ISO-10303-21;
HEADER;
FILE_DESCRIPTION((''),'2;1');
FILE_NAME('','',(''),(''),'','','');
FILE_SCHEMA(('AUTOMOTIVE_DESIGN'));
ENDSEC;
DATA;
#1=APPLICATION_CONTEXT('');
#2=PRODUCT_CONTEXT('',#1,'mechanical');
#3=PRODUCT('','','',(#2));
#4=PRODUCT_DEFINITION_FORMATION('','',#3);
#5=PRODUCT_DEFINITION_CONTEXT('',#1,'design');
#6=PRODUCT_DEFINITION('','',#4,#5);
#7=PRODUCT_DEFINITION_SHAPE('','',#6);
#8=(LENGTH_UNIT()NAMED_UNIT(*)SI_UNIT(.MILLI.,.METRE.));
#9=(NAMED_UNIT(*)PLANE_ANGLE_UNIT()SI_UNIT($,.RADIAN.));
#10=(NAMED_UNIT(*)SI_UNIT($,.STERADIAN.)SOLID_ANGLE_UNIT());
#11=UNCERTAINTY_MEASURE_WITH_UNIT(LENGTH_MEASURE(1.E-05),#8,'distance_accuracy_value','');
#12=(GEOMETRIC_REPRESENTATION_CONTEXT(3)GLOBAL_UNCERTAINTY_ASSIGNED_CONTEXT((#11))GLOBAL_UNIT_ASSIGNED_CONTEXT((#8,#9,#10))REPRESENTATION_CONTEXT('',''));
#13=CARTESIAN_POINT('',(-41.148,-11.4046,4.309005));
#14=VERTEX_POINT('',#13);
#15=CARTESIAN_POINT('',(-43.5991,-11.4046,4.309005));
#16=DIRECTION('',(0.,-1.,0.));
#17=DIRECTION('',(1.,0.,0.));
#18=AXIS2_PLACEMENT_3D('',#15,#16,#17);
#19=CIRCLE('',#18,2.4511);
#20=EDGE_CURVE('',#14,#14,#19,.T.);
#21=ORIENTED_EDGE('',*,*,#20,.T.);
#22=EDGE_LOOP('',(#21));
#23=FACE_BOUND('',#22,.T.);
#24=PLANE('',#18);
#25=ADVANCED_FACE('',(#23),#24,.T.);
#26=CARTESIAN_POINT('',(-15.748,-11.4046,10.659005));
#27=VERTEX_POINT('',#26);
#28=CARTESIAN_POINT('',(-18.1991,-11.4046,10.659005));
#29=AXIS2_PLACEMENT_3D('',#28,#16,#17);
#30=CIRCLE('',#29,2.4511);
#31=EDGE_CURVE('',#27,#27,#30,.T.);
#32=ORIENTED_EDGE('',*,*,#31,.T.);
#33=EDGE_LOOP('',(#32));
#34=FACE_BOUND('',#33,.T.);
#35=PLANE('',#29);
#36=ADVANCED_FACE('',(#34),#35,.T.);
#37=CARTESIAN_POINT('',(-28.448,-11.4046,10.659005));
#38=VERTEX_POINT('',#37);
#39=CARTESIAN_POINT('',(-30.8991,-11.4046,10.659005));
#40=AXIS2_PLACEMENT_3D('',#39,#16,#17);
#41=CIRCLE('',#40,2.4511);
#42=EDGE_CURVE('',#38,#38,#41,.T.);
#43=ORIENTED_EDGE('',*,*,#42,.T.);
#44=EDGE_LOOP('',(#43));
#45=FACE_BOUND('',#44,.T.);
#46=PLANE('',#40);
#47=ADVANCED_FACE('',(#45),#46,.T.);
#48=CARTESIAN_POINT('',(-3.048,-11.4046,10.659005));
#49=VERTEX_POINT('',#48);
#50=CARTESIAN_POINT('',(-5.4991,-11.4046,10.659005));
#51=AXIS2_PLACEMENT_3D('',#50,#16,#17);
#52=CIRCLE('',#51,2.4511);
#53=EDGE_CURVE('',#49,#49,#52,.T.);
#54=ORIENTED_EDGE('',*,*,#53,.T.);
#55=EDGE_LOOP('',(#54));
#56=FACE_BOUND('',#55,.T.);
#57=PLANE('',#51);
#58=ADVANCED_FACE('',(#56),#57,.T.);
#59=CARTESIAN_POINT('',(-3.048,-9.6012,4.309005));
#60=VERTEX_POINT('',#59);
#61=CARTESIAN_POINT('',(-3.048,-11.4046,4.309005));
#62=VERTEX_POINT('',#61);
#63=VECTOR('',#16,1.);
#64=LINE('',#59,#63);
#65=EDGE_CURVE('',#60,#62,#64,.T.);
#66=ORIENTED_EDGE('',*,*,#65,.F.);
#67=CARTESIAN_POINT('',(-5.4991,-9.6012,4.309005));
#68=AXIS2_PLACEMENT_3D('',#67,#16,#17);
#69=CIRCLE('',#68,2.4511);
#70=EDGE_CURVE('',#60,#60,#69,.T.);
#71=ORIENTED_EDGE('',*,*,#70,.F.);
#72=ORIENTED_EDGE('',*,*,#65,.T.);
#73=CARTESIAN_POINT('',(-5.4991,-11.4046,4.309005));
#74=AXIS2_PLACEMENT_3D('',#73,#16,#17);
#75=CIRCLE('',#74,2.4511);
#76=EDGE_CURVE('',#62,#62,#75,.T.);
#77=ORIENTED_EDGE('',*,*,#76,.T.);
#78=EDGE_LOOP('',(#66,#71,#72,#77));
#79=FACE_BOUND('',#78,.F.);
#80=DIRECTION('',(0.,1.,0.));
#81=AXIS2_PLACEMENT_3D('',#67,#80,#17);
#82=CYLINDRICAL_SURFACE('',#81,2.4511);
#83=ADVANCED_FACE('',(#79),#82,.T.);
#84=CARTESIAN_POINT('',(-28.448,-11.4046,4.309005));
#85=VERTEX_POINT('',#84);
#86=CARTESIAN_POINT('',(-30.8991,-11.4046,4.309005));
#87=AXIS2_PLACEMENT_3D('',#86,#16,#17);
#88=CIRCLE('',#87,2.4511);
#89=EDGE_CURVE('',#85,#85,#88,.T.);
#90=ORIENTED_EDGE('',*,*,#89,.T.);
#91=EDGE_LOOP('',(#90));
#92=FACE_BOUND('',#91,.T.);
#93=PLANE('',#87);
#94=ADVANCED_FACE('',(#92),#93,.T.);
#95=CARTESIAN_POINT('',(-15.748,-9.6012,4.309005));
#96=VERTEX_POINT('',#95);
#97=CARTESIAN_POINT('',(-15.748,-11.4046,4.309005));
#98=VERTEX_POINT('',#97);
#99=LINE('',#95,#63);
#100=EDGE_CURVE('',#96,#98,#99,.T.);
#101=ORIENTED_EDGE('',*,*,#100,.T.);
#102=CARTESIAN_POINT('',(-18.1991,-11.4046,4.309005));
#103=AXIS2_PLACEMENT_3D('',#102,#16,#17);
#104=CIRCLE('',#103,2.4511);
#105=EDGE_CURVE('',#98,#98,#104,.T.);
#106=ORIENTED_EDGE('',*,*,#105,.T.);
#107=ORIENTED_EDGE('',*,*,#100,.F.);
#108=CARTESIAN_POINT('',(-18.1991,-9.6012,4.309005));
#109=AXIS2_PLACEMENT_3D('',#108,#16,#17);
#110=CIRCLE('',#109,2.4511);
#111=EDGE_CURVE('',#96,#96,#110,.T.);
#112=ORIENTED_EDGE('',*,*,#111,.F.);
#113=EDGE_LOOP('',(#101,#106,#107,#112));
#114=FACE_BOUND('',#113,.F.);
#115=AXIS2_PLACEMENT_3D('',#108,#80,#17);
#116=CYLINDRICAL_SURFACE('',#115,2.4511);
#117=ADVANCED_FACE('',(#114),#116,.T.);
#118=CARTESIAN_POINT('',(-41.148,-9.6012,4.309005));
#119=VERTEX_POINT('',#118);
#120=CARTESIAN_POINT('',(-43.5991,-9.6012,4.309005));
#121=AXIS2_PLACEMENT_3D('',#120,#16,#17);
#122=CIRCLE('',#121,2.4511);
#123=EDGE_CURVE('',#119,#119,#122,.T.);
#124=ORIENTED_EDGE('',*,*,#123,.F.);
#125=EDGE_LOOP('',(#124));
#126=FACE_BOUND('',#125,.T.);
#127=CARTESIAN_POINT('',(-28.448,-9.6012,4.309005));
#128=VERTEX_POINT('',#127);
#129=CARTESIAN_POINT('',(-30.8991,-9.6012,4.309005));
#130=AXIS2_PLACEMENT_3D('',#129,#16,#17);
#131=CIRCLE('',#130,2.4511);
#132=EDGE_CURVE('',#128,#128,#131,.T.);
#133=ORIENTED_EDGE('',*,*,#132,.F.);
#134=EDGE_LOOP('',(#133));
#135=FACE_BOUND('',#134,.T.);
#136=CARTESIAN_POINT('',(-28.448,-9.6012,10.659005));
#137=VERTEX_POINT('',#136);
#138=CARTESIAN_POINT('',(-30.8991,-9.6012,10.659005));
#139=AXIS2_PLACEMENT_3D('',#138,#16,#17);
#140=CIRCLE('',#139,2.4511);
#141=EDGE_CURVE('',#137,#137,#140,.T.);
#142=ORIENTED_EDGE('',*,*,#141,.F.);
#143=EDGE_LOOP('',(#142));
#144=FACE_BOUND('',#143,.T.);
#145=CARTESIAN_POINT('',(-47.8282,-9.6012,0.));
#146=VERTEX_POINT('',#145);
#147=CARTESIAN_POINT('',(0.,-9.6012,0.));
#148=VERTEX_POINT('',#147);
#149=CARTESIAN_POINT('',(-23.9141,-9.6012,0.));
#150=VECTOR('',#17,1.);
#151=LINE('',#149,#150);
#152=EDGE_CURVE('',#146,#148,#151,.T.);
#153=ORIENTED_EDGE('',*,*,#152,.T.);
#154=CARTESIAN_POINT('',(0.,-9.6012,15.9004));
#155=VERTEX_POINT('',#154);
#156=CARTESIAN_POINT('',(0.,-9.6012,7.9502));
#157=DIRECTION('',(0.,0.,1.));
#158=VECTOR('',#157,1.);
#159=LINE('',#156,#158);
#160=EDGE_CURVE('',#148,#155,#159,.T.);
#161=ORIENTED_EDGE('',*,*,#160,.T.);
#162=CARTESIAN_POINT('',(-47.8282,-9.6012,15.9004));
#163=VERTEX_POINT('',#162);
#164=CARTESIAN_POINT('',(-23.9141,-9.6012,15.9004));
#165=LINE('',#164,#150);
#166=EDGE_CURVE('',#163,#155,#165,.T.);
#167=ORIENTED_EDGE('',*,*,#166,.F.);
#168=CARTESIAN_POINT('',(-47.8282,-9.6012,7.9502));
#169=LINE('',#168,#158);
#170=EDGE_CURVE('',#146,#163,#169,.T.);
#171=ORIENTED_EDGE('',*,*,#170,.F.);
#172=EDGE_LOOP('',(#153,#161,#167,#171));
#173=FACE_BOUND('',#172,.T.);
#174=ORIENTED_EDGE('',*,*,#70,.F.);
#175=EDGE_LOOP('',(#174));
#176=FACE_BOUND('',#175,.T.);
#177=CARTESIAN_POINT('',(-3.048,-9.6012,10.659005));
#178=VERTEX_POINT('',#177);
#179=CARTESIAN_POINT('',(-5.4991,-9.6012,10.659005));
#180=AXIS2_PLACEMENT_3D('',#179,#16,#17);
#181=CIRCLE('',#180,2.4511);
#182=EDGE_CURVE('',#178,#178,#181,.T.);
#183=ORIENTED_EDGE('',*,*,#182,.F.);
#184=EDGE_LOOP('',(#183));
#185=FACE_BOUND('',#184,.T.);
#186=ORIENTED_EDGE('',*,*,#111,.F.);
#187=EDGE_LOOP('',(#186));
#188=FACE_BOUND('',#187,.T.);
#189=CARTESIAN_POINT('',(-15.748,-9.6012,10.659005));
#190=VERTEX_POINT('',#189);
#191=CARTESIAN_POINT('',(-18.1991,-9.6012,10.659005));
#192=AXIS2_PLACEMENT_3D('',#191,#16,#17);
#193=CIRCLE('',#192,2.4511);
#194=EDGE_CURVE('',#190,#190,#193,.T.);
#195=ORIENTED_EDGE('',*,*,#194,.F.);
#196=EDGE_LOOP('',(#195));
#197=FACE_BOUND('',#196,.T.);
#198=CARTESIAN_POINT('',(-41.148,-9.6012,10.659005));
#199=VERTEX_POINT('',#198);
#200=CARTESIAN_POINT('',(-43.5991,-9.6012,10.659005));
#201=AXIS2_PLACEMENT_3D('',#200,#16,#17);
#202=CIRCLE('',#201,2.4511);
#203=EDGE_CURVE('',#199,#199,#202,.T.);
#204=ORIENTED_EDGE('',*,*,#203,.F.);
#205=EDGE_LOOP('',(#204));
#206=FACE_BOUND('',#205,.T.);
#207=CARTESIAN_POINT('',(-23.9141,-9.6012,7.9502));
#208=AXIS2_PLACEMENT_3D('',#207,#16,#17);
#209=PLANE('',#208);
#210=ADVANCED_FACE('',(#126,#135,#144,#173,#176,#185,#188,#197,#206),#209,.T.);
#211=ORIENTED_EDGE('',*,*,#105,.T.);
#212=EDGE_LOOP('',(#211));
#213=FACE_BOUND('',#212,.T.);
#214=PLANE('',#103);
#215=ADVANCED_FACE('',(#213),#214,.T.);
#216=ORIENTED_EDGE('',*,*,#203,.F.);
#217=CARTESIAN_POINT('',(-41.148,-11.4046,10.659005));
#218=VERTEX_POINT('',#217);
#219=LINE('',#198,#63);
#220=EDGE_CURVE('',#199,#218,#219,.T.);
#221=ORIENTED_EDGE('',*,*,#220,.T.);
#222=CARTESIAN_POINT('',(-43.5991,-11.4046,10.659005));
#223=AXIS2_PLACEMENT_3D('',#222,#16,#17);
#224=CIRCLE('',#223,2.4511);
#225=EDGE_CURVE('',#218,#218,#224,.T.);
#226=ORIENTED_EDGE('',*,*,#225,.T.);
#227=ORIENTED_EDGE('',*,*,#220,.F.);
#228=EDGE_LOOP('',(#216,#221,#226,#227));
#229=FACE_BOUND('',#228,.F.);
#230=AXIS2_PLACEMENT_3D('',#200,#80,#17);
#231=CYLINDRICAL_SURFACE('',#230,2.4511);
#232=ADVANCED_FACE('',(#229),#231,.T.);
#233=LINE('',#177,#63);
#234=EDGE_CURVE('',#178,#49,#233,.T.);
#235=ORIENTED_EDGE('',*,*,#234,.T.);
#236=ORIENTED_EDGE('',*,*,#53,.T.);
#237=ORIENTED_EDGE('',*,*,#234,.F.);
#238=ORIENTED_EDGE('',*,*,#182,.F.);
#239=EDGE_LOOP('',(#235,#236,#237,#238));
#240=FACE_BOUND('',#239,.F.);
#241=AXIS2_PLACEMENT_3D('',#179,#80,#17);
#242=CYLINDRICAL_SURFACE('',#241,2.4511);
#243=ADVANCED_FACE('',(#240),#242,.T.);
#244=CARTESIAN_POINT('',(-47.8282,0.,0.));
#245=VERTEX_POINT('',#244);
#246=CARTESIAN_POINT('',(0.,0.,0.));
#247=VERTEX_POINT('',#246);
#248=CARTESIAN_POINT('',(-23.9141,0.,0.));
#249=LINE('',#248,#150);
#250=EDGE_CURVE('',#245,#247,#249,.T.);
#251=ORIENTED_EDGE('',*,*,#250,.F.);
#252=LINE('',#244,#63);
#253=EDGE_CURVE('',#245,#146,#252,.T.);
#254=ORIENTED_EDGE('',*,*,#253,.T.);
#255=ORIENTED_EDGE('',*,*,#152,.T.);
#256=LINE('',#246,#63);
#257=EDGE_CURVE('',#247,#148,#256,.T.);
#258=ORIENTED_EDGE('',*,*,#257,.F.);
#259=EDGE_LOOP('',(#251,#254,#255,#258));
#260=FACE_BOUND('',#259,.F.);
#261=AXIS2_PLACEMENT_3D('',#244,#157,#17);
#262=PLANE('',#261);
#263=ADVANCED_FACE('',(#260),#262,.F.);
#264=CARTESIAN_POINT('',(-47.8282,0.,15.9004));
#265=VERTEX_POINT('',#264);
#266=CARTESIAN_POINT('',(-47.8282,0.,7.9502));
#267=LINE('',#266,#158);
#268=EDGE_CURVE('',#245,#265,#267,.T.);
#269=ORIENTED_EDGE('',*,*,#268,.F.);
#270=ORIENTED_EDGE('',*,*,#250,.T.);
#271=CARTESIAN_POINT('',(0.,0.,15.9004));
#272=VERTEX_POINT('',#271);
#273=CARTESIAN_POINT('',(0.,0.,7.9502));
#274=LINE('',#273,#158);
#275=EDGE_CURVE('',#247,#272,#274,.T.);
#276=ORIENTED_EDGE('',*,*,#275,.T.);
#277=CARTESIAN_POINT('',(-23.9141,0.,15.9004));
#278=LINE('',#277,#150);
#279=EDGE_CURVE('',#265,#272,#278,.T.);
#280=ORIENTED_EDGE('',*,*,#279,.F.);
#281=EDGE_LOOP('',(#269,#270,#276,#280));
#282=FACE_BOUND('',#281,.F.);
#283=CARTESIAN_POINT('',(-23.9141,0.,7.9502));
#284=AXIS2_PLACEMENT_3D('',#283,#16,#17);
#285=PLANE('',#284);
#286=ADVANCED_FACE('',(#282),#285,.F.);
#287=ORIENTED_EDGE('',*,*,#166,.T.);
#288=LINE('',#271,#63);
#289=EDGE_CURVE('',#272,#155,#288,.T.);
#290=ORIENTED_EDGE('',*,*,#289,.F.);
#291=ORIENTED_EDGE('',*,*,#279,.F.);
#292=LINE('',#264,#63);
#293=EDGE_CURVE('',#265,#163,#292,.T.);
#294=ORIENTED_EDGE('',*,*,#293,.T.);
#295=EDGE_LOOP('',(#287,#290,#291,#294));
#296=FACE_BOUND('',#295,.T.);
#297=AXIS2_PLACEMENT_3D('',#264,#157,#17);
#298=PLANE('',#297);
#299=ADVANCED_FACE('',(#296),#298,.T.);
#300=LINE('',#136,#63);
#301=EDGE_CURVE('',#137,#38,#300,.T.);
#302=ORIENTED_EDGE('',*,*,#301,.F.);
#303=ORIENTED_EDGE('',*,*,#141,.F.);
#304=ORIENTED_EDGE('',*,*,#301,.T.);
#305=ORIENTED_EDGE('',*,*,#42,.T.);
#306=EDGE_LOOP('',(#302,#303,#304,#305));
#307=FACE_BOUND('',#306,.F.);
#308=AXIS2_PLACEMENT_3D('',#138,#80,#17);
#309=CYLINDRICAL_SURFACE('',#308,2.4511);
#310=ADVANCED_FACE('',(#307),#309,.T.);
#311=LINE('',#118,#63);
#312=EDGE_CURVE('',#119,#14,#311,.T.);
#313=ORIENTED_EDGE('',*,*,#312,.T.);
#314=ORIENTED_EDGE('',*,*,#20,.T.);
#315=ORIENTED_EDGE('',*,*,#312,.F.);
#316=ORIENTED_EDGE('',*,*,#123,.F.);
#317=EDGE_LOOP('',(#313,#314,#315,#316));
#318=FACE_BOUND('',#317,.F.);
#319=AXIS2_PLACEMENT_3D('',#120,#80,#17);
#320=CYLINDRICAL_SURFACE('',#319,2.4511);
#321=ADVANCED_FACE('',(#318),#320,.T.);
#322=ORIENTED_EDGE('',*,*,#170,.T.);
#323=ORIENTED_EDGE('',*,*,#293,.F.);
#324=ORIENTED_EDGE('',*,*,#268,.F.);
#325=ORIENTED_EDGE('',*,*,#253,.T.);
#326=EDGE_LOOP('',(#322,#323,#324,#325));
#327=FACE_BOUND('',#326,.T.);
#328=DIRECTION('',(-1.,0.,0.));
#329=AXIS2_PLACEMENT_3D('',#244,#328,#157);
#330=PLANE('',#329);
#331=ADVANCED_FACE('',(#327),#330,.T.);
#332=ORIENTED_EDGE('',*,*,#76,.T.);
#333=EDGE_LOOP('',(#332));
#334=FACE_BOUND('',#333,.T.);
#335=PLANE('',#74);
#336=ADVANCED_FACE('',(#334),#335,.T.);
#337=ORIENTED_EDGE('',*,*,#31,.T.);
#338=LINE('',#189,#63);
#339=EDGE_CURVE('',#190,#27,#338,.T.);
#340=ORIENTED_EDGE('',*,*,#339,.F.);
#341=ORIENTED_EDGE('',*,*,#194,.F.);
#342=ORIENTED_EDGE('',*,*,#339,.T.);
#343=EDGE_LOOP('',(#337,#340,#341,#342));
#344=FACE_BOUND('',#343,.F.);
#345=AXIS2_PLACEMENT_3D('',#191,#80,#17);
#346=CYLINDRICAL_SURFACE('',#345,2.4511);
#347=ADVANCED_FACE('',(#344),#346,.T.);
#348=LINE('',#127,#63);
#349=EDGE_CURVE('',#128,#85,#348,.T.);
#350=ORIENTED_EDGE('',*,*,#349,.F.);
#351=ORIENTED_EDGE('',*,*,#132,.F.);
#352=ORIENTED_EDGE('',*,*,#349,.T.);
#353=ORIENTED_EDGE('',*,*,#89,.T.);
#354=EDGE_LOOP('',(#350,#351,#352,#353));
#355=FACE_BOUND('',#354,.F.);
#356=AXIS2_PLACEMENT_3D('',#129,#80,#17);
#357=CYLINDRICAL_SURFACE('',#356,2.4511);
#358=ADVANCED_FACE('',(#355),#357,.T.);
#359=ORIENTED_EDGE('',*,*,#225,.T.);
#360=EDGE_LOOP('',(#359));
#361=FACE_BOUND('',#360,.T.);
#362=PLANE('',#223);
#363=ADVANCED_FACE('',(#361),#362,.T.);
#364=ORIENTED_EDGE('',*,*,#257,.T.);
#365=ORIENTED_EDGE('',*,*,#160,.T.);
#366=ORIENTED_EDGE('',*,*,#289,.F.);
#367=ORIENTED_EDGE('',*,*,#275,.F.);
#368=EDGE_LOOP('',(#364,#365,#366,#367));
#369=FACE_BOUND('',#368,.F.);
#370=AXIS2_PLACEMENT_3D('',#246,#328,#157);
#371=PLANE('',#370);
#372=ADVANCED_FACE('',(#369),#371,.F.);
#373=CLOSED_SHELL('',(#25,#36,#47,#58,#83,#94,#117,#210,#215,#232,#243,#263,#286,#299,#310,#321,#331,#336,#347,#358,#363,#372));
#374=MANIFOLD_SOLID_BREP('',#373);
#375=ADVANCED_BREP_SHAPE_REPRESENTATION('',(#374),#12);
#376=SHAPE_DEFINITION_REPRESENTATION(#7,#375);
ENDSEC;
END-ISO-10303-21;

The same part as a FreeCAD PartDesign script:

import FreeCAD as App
import Part
import Sketcher
from FreeCAD import Vector
Q = App.Units.Quantity


def add_polygon(sketch, points):
    """Adds a closed chain of lines whose ends are joined by coincident constraints."""
    first, n = sketch.GeometryCount, len(points)
    for a, b in zip(points, points[1:] + points[:1]):
        sketch.addGeometry(Part.LineSegment(App.Vector(*a, 0), App.Vector(*b, 0)), False)
    for i in range(n):
        sketch.addConstraint(Sketcher.Constraint("Coincident", first + i, 2, first + (i + 1) % n, 1))

doc = App.newDocument("Part")
body = doc.addObject("PartDesign::Body", "Body")

# Sketch on XZ plane
sketch1 = doc.addObject("Sketcher::SketchObject", "Sketch")
body.addObject(sketch1)
sketch1.AttachmentSupport = (doc.XZ_Plane, [""])
sketch1.MapMode = "FlatFace"
add_polygon(sketch1, [(-48, 16), (-48, 0), (0, 0), (0, 16)])  # lines 0-3
sketch1.addConstraint(Sketcher.Constraint("Vertical", 0))
sketch1.addConstraint(Sketcher.Constraint("Horizontal", 1))
sketch1.addConstraint(Sketcher.Constraint("Vertical", 2))
sketch1.addConstraint(Sketcher.Constraint("Horizontal", 3))
sketch1.addConstraint(Sketcher.Constraint("Coincident", 1, 2, -1, 1))
sketch1.addConstraint(Sketcher.Constraint("DistanceX", 1, 1, 1, 2, Q("1.883 in")))
sketch1.addConstraint(Sketcher.Constraint("DistanceY", 0, 2, 0, 1, Q("0.626 in")))
pad1 = doc.addObject("PartDesign::Pad", "Pad")
body.addObject(pad1)
pad1.Profile = sketch1
pad1.Length = Q("0.378 in")

# Sketch on XZ plane
sketch2 = doc.addObject("Sketcher::SketchObject", "Sketch001")
body.addObject(sketch2)
sketch2.AttachmentSupport = (doc.XZ_Plane, [""])
sketch2.MapMode = "FlatFace"
sketch2.AttachmentOffset = App.Placement(Vector(0, 0, 0.378 * 25.4), App.Rotation())
sketch2.addGeometry(Part.Circle(Vector(-5.5, 10.7, 0), Vector(0, 0, 1), 2.5), False)
sketch2.addGeometry(Part.Circle(Vector(-5.5, 4.3, 0), Vector(0, 0, 1), 2.5), False)
sketch2.addGeometry(Part.Circle(Vector(-18.2, 10.7, 0), Vector(0, 0, 1), 2.5), False)
sketch2.addGeometry(Part.Circle(Vector(-18.2, 4.3, 0), Vector(0, 0, 1), 2.5), False)
sketch2.addGeometry(Part.Circle(Vector(-30.9, 10.7, 0), Vector(0, 0, 1), 2.5), False)
sketch2.addGeometry(Part.Circle(Vector(-30.9, 4.3, 0), Vector(0, 0, 1), 2.5), False)
sketch2.addGeometry(Part.Circle(Vector(-43.6, 10.7, 0), Vector(0, 0, 1), 2.5), False)
sketch2.addGeometry(Part.Circle(Vector(-43.6, 4.3, 0), Vector(0, 0, 1), 2.5), False)
sketch2.addConstraint(Sketcher.Constraint("Equal", 0, 1))
sketch2.addConstraint(Sketcher.Constraint("Equal", 1, 2))
sketch2.addConstraint(Sketcher.Constraint("Equal", 2, 3))
sketch2.addConstraint(Sketcher.Constraint("Equal", 3, 4))
sketch2.addConstraint(Sketcher.Constraint("Equal", 4, 5))
sketch2.addConstraint(Sketcher.Constraint("Equal", 5, 6))
sketch2.addConstraint(Sketcher.Constraint("Equal", 6, 7))
sketch2.addConstraint(Sketcher.Constraint("Horizontal", 0, 3, 2, 3))
sketch2.addConstraint(Sketcher.Constraint("Horizontal", 1, 3, 3, 3))
sketch2.addConstraint(Sketcher.Constraint("Horizontal", 2, 3, 4, 3))
sketch2.addConstraint(Sketcher.Constraint("Horizontal", 3, 3, 5, 3))
sketch2.addConstraint(Sketcher.Constraint("Horizontal", 4, 3, 6, 3))
sketch2.addConstraint(Sketcher.Constraint("Horizontal", 5, 3, 7, 3))
sketch2.addConstraint(Sketcher.Constraint("Vertical", 0, 3, 1, 3))
sketch2.addConstraint(Sketcher.Constraint("Vertical", 2, 3, 3, 3))
sketch2.addConstraint(Sketcher.Constraint("Vertical", 4, 3, 5, 3))
sketch2.addConstraint(Sketcher.Constraint("Vertical", 6, 3, 7, 3))
sketch2.addConstraint(Sketcher.Constraint("Diameter", 0, Q("0.193 in")))
sketch2.addConstraint(Sketcher.Constraint("DistanceX", 4, 3, 0, 3, Q("1 in")))
sketch2.addConstraint(Sketcher.Constraint("DistanceX", 6, 3, 2, 3, Q("1 in")))
sketch2.addConstraint(Sketcher.Constraint("DistanceX", 2, 3, 0, 3, Q("0.5 in")))
sketch2.addConstraint(Sketcher.Constraint("DistanceY", 1, 3, 0, 3, Q("0.25 in")))
sketch2.addConstraint(Sketcher.Constraint("DistanceX", 0, 3, -1, 1, Q("0.2165 in")))
sketch2.addConstraint(Sketcher.Constraint("DistanceY", -1, 1, 0, 3, Q("10.659005 mm")))
pad2 = doc.addObject("PartDesign::Pad", "Pad001")
body.addObject(pad2)
pad2.Profile = sketch2
pad2.Length = Q("0.071 in")

doc.recompute()
